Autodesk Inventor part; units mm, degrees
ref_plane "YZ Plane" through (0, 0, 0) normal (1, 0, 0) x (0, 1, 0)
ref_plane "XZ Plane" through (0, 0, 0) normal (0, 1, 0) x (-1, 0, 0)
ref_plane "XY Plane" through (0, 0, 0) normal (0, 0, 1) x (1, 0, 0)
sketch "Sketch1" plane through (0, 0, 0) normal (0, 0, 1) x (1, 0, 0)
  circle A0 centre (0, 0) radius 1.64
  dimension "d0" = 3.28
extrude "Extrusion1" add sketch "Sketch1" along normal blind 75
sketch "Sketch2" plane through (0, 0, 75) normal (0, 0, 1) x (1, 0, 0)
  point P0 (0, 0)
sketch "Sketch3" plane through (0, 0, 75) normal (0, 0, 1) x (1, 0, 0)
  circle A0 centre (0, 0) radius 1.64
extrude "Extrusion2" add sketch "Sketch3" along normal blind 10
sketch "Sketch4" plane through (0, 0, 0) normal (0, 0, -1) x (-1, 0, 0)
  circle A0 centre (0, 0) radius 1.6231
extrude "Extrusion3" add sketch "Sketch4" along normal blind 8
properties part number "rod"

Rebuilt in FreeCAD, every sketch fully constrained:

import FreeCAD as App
import Part
import Sketcher

V = App.Vector
Q = App.Units.Quantity

doc = App.newDocument("Part")
body = doc.addObject("PartDesign::Body", "Body")

# Sketch on XY plane
sketch1 = body.newObject("Sketcher::SketchObject", "Sketch")
sketch1.AttachmentSupport = (doc.getObject("XY_Plane"), [""])
sketch1.MapMode = "FlatFace"
sketch1.addGeometry(Part.Circle(V(0, 0, 0), V(0, 0, 1), 1.6), False)
sketch1.addConstraint(Sketcher.Constraint("Coincident", 0, 3, -1, 1))
sketch1.addConstraint(Sketcher.Constraint("Diameter", 0, Q("3.28 mm")))
pad1 = body.newObject("PartDesign::Pad", "Pad")
pad1.Profile = sketch1
pad1.Length = 75

# Sketch on XY plane
sketch2 = body.newObject("Sketcher::SketchObject", "Sketch001")
sketch2.AttachmentSupport = (doc.getObject("XY_Plane"), [""])
sketch2.MapMode = "FlatFace"
sketch2.AttachmentOffset = App.Placement(V(0, 0, 75), App.Rotation())
sketch2.addGeometry(Part.Circle(V(0, 0, 0), V(0, 0, 1), 1.6), False)
sketch2.addConstraint(Sketcher.Constraint("Coincident", 0, 3, -1, 1))
sketch2.addConstraint(Sketcher.Constraint("Diameter", 0, Q("3.28 mm")))
pad2 = body.newObject("PartDesign::Pad", "Pad001")
pad2.Profile = sketch2
pad2.Length = 10

# Sketch on XY plane
sketch3 = body.newObject("Sketcher::SketchObject", "Sketch002")
sketch3.AttachmentSupport = (doc.getObject("XY_Plane"), [""])
sketch3.MapMode = "FlatFace"
sketch3.addGeometry(Part.Circle(V(0, 0, 0), V(0, 0, 1), 1.6), False)
sketch3.addConstraint(Sketcher.Constraint("Coincident", 0, 3, -1, 1))
sketch3.addConstraint(Sketcher.Constraint("Diameter", 0, Q("3.2462 mm")))
pad3 = body.newObject("PartDesign::Pad", "Pad002")
pad3.Profile = sketch3
pad3.Length = 8
pad3.Reversed = True

doc.recompute()
